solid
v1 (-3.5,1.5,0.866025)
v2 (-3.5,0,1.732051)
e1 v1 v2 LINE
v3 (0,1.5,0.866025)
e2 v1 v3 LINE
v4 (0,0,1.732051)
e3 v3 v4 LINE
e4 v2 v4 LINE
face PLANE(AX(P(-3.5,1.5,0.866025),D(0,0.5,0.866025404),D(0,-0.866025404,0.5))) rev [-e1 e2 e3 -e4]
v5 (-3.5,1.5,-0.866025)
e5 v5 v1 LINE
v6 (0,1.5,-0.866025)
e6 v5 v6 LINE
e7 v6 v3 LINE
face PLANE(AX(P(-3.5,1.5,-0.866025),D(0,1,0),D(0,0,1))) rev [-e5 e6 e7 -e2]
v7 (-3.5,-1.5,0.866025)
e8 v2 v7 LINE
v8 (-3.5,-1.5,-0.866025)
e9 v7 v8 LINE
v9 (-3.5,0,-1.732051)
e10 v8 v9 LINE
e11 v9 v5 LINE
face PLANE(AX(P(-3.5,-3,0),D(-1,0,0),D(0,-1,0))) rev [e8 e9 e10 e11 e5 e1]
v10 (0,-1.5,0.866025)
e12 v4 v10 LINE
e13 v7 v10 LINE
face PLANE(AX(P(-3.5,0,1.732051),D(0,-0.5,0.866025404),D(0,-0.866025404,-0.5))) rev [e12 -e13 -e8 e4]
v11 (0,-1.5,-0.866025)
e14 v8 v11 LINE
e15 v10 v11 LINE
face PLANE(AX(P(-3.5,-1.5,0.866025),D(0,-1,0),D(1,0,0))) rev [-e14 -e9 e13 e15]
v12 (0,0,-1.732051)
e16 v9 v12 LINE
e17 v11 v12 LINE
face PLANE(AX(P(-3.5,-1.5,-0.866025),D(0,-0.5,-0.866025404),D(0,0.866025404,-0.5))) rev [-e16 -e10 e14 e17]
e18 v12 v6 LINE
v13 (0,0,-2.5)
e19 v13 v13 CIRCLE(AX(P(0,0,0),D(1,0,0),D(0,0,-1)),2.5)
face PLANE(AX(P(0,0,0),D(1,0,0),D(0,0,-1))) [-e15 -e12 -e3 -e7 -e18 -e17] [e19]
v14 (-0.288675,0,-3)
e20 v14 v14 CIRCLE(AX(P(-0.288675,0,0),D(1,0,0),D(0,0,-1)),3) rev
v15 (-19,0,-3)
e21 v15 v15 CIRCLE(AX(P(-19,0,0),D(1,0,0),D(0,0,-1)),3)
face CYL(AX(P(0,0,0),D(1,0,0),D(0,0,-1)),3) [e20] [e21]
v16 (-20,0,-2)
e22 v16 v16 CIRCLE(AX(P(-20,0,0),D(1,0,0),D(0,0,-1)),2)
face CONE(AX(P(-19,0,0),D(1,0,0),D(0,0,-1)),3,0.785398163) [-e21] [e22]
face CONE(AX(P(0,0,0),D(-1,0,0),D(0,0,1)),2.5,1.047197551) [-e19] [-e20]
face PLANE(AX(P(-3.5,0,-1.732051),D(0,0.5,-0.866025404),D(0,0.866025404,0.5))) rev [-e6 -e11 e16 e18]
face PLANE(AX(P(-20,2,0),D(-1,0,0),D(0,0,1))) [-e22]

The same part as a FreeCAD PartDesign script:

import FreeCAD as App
import Part
import Sketcher

V = App.Vector
Q = App.Units.Quantity


def edges_at(feature, points):
    """Names of the edges that pass closest to the given points."""
    edges = feature.Shape.Edges
    near = lambda p: min(range(len(edges)), key=lambda i: edges[i].distToShape(Part.Vertex(*p))[0])
    return sorted({f"Edge{near(p) + 1}" for p in points})


def add_polygon(sketch, points):
    """Adds a closed chain of lines whose ends are joined by coincident constraints."""
    first, n = sketch.GeometryCount, len(points)
    for a, b in zip(points, points[1:] + points[:1]):
        sketch.addGeometry(Part.LineSegment(App.Vector(*a, 0), App.Vector(*b, 0)), False)
    for i in range(n):
        sketch.addConstraint(Sketcher.Constraint("Coincident", first + i, 2, first + (i + 1) % n, 1))

doc = App.newDocument("Part")
body = doc.addObject("PartDesign::Body", "Body")

# Sketch on XY plane
sketch1 = body.newObject("Sketcher::SketchObject", "Sketch")
sketch1.AttachmentSupport = (doc.getObject("XY_Plane"), [""])
sketch1.MapMode = "FlatFace"
add_polygon(sketch1, [(-19, 3), (-20, 2), (-20, 0), (0, 0), (0, 3)])  # lines 0-4
sketch1.addConstraint(Sketcher.Constraint("Vertical", 1))
sketch1.addConstraint(Sketcher.Constraint("Horizontal", 2))
sketch1.addConstraint(Sketcher.Constraint("Vertical", 3))
sketch1.addConstraint(Sketcher.Constraint("Horizontal", 4))
sketch1.addConstraint(Sketcher.Constraint("Coincident", 2, 2, -1, 1))
sketch1.addConstraint(Sketcher.Constraint("DistanceX", 2, 1, 2, 2, Q("20 mm")))
sketch1.addConstraint(Sketcher.Constraint("DistanceX", 4, 2, 4, 1, Q("19 mm")))
sketch1.addConstraint(Sketcher.Constraint("DistanceY", 1, 2, 1, 1, Q("2 mm")))
sketch1.addConstraint(Sketcher.Constraint("DistanceY", 3, 1, 3, 2, Q("3 mm")))
revolution = body.newObject("PartDesign::Revolution", "Revolution")
revolution.Profile = sketch1
revolution.ReferenceAxis = (sketch1, ["H_Axis"])
revolution.Angle = 360

# Sketch on YZ plane
sketch2 = body.newObject("Sketcher::SketchObject", "Sketch001")
sketch2.AttachmentSupport = (doc.getObject("YZ_Plane"), [""])
sketch2.MapMode = "FlatFace"
add_polygon(sketch2, [(0, -1.732051), (1.5, -0.866025), (1.5, 0.866025), (0, 1.732051), (-1.5, 0.866025), (-1.5, -0.866025)])  # lines 0-5
sketch2.addConstraint(Sketcher.Constraint("Vertical", 1))
sketch2.addConstraint(Sketcher.Constraint("Vertical", 4))
sketch2.addConstraint(Sketcher.Constraint("Symmetric", 0, 2, 3, 2, -1, 1))
sketch2.addConstraint(Sketcher.Constraint("Symmetric", 2, 2, 5, 2, -1, 1))
sketch2.addConstraint(Sketcher.Constraint("PointOnObject", 2, 2, -2))
sketch2.addConstraint(Sketcher.Constraint("Parallel", 2, 5))
sketch2.addConstraint(Sketcher.Constraint("Horizontal", 1, 2, 3, 2))
sketch2.addConstraint(Sketcher.Constraint("Angle", 0, Q("30 deg")))
sketch2.addConstraint(Sketcher.Constraint("DistanceX", 3, 2, 1, 2, Q("3 mm")))
sketch2.addConstraint(Sketcher.Constraint("DistanceY", 1, 1, 1, 2, Q("1.732051 mm")))
pocket1 = body.newObject("PartDesign::Pocket", "Pocket")
pocket1.Profile = sketch2
pocket1.Length = 3.5
doc.recompute()

chamfer = body.newObject("PartDesign::Chamfer", "Chamfer")
chamfer.Base = (pocket1, edges_at(pocket1, [(0, 0, 3)]))
chamfer.ChamferType = "Two distances"
chamfer.Size = 0.288675
chamfer.Size2 = 0.5

doc.recompute()
